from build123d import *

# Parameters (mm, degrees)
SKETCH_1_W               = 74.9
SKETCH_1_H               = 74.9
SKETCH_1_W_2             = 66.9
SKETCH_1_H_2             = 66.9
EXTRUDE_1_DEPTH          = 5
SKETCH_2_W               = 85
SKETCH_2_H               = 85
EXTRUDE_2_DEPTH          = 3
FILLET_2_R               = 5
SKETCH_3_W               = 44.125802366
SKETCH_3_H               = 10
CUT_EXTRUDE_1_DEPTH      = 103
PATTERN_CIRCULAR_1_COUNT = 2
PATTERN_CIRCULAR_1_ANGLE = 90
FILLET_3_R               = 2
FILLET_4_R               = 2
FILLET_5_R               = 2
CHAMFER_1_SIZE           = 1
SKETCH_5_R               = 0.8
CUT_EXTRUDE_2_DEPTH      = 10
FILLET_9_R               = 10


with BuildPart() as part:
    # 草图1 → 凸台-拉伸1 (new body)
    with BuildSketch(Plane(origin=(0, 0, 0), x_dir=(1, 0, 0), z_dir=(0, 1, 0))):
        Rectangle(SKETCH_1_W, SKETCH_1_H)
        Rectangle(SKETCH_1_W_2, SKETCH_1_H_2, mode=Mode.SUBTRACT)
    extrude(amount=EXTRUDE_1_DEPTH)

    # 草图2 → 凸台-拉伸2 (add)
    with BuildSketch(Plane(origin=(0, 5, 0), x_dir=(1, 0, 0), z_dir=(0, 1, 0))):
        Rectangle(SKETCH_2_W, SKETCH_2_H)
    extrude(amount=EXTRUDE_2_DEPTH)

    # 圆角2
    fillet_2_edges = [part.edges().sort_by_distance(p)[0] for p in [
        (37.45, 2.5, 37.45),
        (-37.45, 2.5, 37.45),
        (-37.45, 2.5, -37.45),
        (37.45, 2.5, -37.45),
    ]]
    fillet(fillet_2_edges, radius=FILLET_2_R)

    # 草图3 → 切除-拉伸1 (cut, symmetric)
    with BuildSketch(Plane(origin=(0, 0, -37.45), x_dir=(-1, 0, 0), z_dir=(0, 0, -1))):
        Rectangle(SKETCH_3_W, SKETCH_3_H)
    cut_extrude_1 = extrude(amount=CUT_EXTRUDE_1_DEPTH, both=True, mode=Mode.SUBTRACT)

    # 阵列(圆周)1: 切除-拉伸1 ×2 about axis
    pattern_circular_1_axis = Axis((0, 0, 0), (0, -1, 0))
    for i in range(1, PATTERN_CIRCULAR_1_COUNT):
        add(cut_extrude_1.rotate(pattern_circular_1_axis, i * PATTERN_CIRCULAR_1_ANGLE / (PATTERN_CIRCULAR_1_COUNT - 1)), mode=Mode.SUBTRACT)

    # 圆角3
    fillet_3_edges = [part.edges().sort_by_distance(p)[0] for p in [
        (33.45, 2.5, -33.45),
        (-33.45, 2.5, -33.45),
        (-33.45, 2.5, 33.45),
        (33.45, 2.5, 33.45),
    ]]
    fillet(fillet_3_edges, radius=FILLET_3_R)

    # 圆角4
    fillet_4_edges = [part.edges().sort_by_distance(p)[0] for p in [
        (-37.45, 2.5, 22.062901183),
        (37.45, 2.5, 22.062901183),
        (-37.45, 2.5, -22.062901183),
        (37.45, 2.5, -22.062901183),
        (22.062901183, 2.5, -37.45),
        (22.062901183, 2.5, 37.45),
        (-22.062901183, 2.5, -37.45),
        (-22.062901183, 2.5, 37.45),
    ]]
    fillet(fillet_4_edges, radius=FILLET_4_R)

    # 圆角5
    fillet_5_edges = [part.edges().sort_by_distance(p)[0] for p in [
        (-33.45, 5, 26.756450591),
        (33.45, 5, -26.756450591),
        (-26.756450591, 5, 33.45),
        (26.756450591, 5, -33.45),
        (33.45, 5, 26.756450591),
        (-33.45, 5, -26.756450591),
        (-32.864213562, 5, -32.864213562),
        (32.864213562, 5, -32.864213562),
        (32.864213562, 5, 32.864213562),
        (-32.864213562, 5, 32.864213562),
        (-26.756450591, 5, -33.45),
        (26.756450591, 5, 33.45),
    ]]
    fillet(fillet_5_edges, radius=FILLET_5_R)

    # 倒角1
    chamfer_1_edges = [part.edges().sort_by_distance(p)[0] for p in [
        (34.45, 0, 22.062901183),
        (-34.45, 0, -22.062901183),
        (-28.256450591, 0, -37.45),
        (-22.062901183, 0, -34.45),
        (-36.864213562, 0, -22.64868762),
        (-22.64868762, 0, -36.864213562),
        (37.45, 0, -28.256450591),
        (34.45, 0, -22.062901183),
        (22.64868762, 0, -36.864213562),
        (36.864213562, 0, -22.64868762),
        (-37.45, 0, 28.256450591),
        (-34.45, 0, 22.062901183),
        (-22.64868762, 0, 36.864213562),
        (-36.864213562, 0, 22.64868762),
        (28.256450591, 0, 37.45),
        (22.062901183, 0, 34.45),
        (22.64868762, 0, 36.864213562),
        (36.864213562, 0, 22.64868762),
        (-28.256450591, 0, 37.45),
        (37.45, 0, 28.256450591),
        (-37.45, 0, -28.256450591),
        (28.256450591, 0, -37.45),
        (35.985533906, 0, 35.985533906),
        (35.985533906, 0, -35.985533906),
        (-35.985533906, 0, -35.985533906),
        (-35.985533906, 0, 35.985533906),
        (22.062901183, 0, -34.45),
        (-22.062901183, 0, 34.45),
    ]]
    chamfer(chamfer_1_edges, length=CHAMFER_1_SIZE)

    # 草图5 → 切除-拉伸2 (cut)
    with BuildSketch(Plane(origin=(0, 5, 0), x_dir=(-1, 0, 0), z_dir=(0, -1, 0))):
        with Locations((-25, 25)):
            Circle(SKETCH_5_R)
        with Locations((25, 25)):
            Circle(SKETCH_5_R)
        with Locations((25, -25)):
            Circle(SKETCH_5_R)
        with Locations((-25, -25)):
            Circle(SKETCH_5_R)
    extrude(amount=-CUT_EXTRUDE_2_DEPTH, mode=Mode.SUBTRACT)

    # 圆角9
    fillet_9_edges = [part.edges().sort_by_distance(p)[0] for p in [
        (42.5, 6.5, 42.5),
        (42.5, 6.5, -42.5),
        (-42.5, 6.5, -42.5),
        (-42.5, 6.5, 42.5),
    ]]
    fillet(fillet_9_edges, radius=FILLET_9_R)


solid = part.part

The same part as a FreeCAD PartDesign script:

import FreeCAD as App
import Part
import Sketcher

V = App.Vector
Q = App.Units.Quantity


def edges_at(feature, points):
    """Names of the edges that pass closest to the given points."""
    edges = feature.Shape.Edges
    near = lambda p: min(range(len(edges)), key=lambda i: edges[i].distToShape(Part.Vertex(*p))[0])
    return sorted({f"Edge{near(p) + 1}" for p in points})

doc = App.newDocument("Part")
body = doc.addObject("PartDesign::Body", "Body")

# Sketch on XZ plane
sketch1 = body.newObject("Sketcher::SketchObject", "Sketch")
sketch1.AttachmentSupport = (doc.getObject("XZ_Plane"), [""])
sketch1.MapMode = "FlatFace"
sketch1.addGeometry([
    Part.LineSegment(V(-37, -37, 0), V(-37, 37, 0)),  # 0
    Part.LineSegment(V(-37, 37, 0), V(37, 37, 0)),  # 1
    Part.LineSegment(V(37, 37, 0), V(37, -37, 0)),  # 2
    Part.LineSegment(V(37, -37, 0), V(-37, -37, 0)),  # 3
    Part.LineSegment(V(33, 33, 0), V(-33, 33, 0)),  # 4
    Part.LineSegment(V(-33, 33, 0), V(-33, -33, 0)),  # 5
    Part.LineSegment(V(-33, -33, 0), V(33, -33, 0)),  # 6
    Part.LineSegment(V(33, -33, 0), V(33, 33, 0)),  # 7
], False)
sketch1.addConstraint([
    Sketcher.Constraint("Coincident", 0, 2, 1, 1),
    Sketcher.Constraint("Coincident", 1, 2, 2, 1),
    Sketcher.Constraint("Coincident", 2, 2, 3, 1),
    Sketcher.Constraint("Coincident", 3, 2, 0, 1),
    Sketcher.Constraint("Coincident", 4, 2, 5, 1),
    Sketcher.Constraint("Coincident", 5, 2, 6, 1),
    Sketcher.Constraint("Coincident", 6, 2, 7, 1),
    Sketcher.Constraint("Coincident", 7, 2, 4, 1),
    Sketcher.Constraint("Vertical", 0),
    Sketcher.Constraint("Horizontal", 1),
    Sketcher.Constraint("Vertical", 2),
    Sketcher.Constraint("Horizontal", 3),
    Sketcher.Constraint("Horizontal", 4),
    Sketcher.Constraint("Vertical", 5),
    Sketcher.Constraint("Horizontal", 6),
    Sketcher.Constraint("Vertical", 7),
    Sketcher.Constraint("Symmetric", 0, 2, 2, 2, -1, 1),
    Sketcher.Constraint("Symmetric", 4, 2, 6, 2, -1, 1),
    Sketcher.Constraint("Equal", 3, 0),
    Sketcher.Constraint("Equal", 6, 5),
    Sketcher.Constraint("DistanceX", 1, 1, 1, 2, Q("74.9 mm")),
    Sketcher.Constraint("DistanceX", 4, 2, 4, 1, Q("66.9 mm")),
])
pad1 = body.newObject("PartDesign::Pad", "Pad")
pad1.Profile = sketch1
pad1.Length = 5
pad1.Reversed = True

# Sketch on XZ plane
sketch2 = body.newObject("Sketcher::SketchObject", "Sketch001")
sketch2.AttachmentSupport = (doc.getObject("XZ_Plane"), [""])
sketch2.MapMode = "FlatFace"
sketch2.AttachmentOffset = App.Placement(V(0, 0, -5), App.Rotation())
sketch2.addGeometry([
    Part.LineSegment(V(-42, -42, 0), V(-42, 42, 0)),
    Part.LineSegment(V(-42, 42, 0), V(42, 42, 0)),
    Part.LineSegment(V(42, 42, 0), V(42, -42, 0)),
    Part.LineSegment(V(42, -42, 0), V(-42, -42, 0)),
], False)
sketch2.addConstraint([
    Sketcher.Constraint("Coincident", 0, 2, 1, 1),
    Sketcher.Constraint("Coincident", 1, 2, 2, 1),
    Sketcher.Constraint("Coincident", 2, 2, 3, 1),
    Sketcher.Constraint("Coincident", 3, 2, 0, 1),
    Sketcher.Constraint("Vertical", 0),
    Sketcher.Constraint("Horizontal", 1),
    Sketcher.Constraint("Vertical", 2),
    Sketcher.Constraint("Horizontal", 3),
    Sketcher.Constraint("Symmetric", 0, 2, 2, 2, -1, 1),
    Sketcher.Constraint("Equal", 3, 0),
    Sketcher.Constraint("DistanceX", 1, 1, 1, 2, Q("85 mm")),
])
pad2 = body.newObject("PartDesign::Pad", "Pad001")
pad2.Profile = sketch2
pad2.Length = 3
pad2.Reversed = True
doc.recompute()

fillet = body.newObject("PartDesign::Fillet", "Fillet")
fillet.Base = (pad2, edges_at(pad2, [
    (37.45, 2.5, 37.45),
    (-37.45, 2.5, 37.45),
    (-37.45, 2.5, -37.45),
    (37.45, 2.5, -37.45),
]))
fillet.Radius = 5

# Sketch on XY plane
sketch3 = body.newObject("Sketcher::SketchObject", "Sketch002")
sketch3.AttachmentSupport = (doc.getObject("XY_Plane"), [""])
sketch3.MapMode = "FlatFace"
sketch3.AttachmentOffset = App.Placement(V(0, 0, -37.45), App.Rotation())
sketch3.addGeometry([
    Part.LineSegment(V(22, 5, 0), V(22, -5, 0)),
    Part.LineSegment(V(22, -5, 0), V(-22, -5, 0)),
    Part.LineSegment(V(-22, -5, 0), V(-22, 5, 0)),
    Part.LineSegment(V(-22, 5, 0), V(22, 5, 0)),
], False)
sketch3.addConstraint([
    Sketcher.Constraint("Coincident", 0, 2, 1, 1),
    Sketcher.Constraint("Coincident", 1, 2, 2, 1),
    Sketcher.Constraint("Coincident", 2, 2, 3, 1),
    Sketcher.Constraint("Coincident", 3, 2, 0, 1),
    Sketcher.Constraint("Vertical", 0),
    Sketcher.Constraint("Horizontal", 1),
    Sketcher.Constraint("Vertical", 2),
    Sketcher.Constraint("Horizontal", 3),
    Sketcher.Constraint("Symmetric", 0, 2, 2, 2, -1, 1),
    Sketcher.Constraint("DistanceY", 0, 2, 0, 1, Q("10 mm")),
    Sketcher.Constraint("DistanceX", -1, 1, 0, 2, Q("22.062901 mm")),
])
pocket1 = body.newObject("PartDesign::Pocket", "Pocket")
pocket1.Profile = sketch3
pocket1.Length = 206
pocket1.Midplane = True
doc.recompute()

polarpattern = body.newObject("PartDesign::PolarPattern", "PolarPattern")
polarpattern.Originals = [pocket1]
polarpattern.Axis = (doc.getObject("Y_Axis"), [""])
polarpattern.Angle = 90
polarpattern.Occurrences = 2
polarpattern.Reversed = True
body.Tip = polarpattern
doc.recompute()

fillet2 = body.newObject("PartDesign::Fillet", "Fillet001")
fillet2.Base = (polarpattern, edges_at(polarpattern, [
    (33.45, 2.5, -33.45),
    (-33.45, 2.5, -33.45),
    (-33.45, 2.5, 33.45),
    (33.45, 2.5, 33.45),
]))
fillet2.Radius = 2
doc.recompute()

fillet3 = body.newObject("PartDesign::Fillet", "Fillet002")
fillet3.Base = (fillet2, edges_at(fillet2, [
    (-37.45, 2.5, 22.063),
    (37.45, 2.5, 22.063),
    (-37.45, 2.5, -22.063),
    (37.45, 2.5, -22.063),
    (22.063, 2.5, -37.45),
    (22.063, 2.5, 37.45),
    (-22.063, 2.5, -37.45),
    (-22.063, 2.5, 37.45),
]))
fillet3.Radius = 2
doc.recompute()

fillet4 = body.newObject("PartDesign::Fillet", "Fillet003")
fillet4.Base = (fillet3, edges_at(fillet3, [
    (-33.45, 5, 26.756),
    (33.45, 5, -26.756),
    (-26.756, 5, 33.45),
    (26.756, 5, -33.45),
    (33.45, 5, 26.756),
    (-33.45, 5, -26.756),
    (-32.864, 5, -32.864),
    (32.864, 5, -32.864),
    (32.864, 5, 32.864),
    (-32.864, 5, 32.864),
    (-26.756, 5, -33.45),
    (26.756, 5, 33.45),
]))
fillet4.Radius = 2
doc.recompute()

chamfer = body.newObject("PartDesign::Chamfer", "Chamfer")
chamfer.Base = (fillet4, edges_at(fillet4, [
    (34.45, 0, 22.063),
    (-34.45, 0, -22.063),
    (-28.256, 0, -37.45),
    (-22.063, 0, -34.45),
    (-36.864, 0, -22.649),
    (-22.649, 0, -36.864),
    (37.45, 0, -28.256),
    (34.45, 0, -22.063),
    (22.649, 0, -36.864),
    (36.864, 0, -22.649),
    (-37.45, 0, 28.256),
    (-34.45, 0, 22.063),
    (-22.649, 0, 36.864),
    (-36.864, 0, 22.649),
    (28.256, 0, 37.45),
    (22.063, 0, 34.45),
    (22.649, 0, 36.864),
    (36.864, 0, 22.649),
    (-28.256, 0, 37.45),
    (37.45, 0, 28.256),
    (-37.45, 0, -28.256),
    (28.256, 0, -37.45),
    (35.986, 0, 35.986),
    (35.986, 0, -35.986),
    (-35.986, 0, -35.986),
    (-35.986, 0, 35.986),
    (22.063, 0, -34.45),
    (-22.063, 0, 34.45),
]))
chamfer.Size = 1

# Sketch on XZ plane
sketch4 = body.newObject("Sketcher::SketchObject", "Sketch003")
sketch4.AttachmentSupport = (doc.getObject("XZ_Plane"), [""])
sketch4.MapMode = "FlatFace"
sketch4.AttachmentOffset = App.Placement(V(0, 0, -5), App.Rotation())
sketch4.addGeometry([
    Part.Circle(V(25, -25, 0), V(0, 0, 1), 0.8),
    Part.Circle(V(-25, -25, 0), V(0, 0, 1), 0.8),
    Part.Circle(V(-25, 25, 0), V(0, 0, 1), 0.8),
    Part.Circle(V(25, 25, 0), V(0, 0, 1), 0.8),
], False)
sketch4.addConstraint([
    Sketcher.Constraint("Equal", 0, 1),
    Sketcher.Constraint("Equal", 1, 2),
    Sketcher.Constraint("Equal", 2, 3),
    Sketcher.Constraint("Symmetric", 0, 3, 2, 3, -1, 1),
    Sketcher.Constraint("Symmetric", 1, 3, 3, 3, -1, 1),
    Sketcher.Constraint("Symmetric", 0, 3, 1, 3, -2),
    Sketcher.Constraint("Diameter", 0, Q("1.6 mm")),
    Sketcher.Constraint("DistanceX", -1, 1, 0, 3, Q("25 mm")),
    Sketcher.Constraint("DistanceY", 0, 3, -1, 1, Q("25 mm")),
])
pocket2 = body.newObject("PartDesign::Pocket", "Pocket001")
pocket2.Profile = sketch4
pocket2.Length = 10
doc.recompute()

fillet5 = body.newObject("PartDesign::Fillet", "Fillet004")
fillet5.Base = (pocket2, edges_at(pocket2, [
    (42.5, 6.5, 42.5),
    (42.5, 6.5, -42.5),
    (-42.5, 6.5, -42.5),
    (-42.5, 6.5, 42.5),
]))
fillet5.Radius = 10

doc.recompute()
